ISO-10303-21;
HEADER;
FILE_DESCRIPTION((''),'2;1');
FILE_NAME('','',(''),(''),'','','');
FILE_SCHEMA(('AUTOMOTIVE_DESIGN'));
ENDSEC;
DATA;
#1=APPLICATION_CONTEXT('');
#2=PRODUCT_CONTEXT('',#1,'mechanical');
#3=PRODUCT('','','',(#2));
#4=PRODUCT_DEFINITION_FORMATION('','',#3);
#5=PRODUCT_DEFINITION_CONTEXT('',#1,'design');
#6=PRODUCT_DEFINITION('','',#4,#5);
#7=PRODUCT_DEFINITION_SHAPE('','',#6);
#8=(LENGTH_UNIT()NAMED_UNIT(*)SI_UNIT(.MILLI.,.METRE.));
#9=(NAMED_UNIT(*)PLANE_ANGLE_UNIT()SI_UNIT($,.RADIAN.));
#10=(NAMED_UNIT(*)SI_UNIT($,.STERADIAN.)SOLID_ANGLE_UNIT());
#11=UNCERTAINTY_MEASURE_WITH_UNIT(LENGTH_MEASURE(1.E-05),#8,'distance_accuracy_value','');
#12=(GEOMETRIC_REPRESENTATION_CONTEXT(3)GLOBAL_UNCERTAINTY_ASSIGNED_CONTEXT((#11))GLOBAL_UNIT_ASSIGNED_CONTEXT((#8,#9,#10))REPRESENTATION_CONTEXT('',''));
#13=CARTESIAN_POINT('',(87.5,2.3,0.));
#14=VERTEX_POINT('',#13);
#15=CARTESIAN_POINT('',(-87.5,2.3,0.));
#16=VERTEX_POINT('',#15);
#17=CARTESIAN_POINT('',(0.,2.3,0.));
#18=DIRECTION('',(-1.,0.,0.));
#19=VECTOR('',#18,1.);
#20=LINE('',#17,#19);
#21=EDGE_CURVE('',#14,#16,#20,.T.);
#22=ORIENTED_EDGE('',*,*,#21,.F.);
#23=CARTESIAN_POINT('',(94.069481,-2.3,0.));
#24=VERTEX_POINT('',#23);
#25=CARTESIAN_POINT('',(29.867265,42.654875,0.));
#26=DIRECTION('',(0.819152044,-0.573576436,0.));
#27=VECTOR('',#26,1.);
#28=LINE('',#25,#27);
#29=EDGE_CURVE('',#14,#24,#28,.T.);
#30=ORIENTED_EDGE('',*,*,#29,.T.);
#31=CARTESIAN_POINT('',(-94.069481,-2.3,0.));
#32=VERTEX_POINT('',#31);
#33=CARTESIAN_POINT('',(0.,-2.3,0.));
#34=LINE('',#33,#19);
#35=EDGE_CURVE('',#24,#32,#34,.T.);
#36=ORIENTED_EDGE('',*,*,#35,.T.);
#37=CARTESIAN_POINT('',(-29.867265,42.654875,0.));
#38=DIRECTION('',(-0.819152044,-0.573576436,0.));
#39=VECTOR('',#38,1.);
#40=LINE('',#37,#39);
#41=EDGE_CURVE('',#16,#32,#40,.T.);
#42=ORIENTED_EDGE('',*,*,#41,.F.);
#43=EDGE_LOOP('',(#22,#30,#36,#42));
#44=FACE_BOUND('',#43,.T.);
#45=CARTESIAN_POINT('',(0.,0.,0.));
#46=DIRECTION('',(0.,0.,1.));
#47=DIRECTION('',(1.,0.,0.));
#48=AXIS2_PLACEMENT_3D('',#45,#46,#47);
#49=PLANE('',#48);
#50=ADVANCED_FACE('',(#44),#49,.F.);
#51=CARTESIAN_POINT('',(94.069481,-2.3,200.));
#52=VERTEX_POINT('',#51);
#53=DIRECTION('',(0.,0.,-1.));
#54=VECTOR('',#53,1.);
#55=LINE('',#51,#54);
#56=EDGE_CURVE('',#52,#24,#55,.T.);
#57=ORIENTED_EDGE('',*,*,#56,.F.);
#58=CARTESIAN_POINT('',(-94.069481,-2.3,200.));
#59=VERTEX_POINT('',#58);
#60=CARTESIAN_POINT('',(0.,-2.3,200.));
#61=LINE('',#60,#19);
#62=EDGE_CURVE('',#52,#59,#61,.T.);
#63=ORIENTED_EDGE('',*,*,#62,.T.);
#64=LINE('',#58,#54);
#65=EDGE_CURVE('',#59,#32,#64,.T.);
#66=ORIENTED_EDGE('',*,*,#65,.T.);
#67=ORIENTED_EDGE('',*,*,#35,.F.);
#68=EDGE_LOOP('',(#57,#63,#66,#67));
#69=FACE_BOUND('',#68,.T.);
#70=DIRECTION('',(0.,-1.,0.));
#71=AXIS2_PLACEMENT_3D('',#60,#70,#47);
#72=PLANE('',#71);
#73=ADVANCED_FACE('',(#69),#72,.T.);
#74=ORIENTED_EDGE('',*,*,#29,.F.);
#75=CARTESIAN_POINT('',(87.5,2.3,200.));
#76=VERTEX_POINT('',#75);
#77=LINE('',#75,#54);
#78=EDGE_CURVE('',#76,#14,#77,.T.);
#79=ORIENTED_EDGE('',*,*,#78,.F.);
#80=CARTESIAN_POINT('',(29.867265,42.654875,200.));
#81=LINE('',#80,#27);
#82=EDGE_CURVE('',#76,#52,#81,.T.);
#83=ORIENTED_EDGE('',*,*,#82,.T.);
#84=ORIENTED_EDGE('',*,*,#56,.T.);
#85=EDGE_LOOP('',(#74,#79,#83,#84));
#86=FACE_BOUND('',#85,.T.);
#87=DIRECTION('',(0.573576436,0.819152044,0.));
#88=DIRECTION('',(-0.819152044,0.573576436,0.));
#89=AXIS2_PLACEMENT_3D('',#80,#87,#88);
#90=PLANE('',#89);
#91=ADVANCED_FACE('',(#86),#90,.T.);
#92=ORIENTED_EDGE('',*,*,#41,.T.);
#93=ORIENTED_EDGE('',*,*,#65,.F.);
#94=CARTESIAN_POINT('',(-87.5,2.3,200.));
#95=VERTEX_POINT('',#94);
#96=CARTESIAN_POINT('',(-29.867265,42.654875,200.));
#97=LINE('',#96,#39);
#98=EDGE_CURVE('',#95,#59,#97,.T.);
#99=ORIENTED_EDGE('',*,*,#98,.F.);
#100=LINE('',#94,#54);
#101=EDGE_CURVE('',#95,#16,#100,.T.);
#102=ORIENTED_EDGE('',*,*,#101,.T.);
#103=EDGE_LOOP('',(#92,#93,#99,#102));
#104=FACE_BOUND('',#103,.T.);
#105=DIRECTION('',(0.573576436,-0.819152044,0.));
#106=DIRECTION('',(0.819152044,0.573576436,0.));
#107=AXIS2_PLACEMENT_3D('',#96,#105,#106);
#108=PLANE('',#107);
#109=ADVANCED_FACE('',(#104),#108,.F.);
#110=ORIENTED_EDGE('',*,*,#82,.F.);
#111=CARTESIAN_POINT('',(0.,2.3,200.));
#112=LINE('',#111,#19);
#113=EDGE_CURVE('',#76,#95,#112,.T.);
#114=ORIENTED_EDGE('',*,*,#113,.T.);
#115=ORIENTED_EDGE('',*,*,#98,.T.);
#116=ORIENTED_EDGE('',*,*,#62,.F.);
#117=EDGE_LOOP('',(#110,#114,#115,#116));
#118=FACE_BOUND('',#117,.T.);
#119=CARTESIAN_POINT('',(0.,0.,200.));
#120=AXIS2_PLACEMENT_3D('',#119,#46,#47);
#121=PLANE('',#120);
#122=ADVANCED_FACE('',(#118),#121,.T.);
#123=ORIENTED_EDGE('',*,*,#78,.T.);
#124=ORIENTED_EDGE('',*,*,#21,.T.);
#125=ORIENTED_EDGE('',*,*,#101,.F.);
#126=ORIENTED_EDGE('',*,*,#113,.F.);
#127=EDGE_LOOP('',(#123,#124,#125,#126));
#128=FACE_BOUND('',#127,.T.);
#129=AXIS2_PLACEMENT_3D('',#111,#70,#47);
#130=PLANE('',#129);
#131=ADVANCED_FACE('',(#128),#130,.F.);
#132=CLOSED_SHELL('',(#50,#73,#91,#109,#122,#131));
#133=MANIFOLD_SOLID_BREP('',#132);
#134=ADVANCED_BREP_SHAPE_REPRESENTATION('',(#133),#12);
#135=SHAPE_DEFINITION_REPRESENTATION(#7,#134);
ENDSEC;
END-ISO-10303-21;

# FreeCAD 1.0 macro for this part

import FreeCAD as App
import Part
import Sketcher
from FreeCAD import Vector
Q = App.Units.Quantity

doc = App.newDocument("Part")
params = doc.addObject("Spreadsheet::Sheet", "Params")
for row, (alias, value) in enumerate([
    ("sketch1_width", "175 mm"),
    ("pad1_length", "200 mm"),
], start=1):
    params.set(f"A{row}", alias)
    params.set(f"B{row}", "=" + value)
    params.setAlias(f"B{row}", alias)

body = doc.addObject("PartDesign::Body", "Body")

# Sketch on XY plane
sketch1 = body.newObject("Sketcher::SketchObject", "Sketch")
sketch1.AttachmentSupport = (doc.getObject("XY_Plane"), [""])
sketch1.MapMode = "FlatFace"
sketch1.addGeometry(Part.LineSegment(Vector(-88, 2, 0), Vector(-94, -2, 0)), False)
sketch1.addGeometry(Part.LineSegment(Vector(-94, -2, 0), Vector(94, -2, 0)), False)
sketch1.addGeometry(Part.LineSegment(Vector(94, -2, 0), Vector(88, 2, 0)), False)
sketch1.addGeometry(Part.LineSegment(Vector(88, 2, 0), Vector(-88, 2, 0)), False)
sketch1.addConstraint(Sketcher.Constraint("Coincident", 0, 2, 1, 1))
sketch1.addConstraint(Sketcher.Constraint("Coincident", 1, 2, 2, 1))
sketch1.addConstraint(Sketcher.Constraint("Coincident", 2, 2, 3, 1))
sketch1.addConstraint(Sketcher.Constraint("Coincident", 3, 2, 0, 1))
sketch1.addConstraint(Sketcher.Constraint("Horizontal", 1))
sketch1.addConstraint(Sketcher.Constraint("Horizontal", 3))
sketch1.addConstraint(Sketcher.Constraint("Equal", 0, 2))
sketch1.addConstraint(Sketcher.Constraint("DistanceX", 3, 2, 3, 1, 175.0))
sketch1.addConstraint(Sketcher.Constraint("Angle", 0, Q("-145 deg")))
sketch1.addConstraint(Sketcher.Constraint("DistanceY", 0, 2, -1, 1, 2.3))
sketch1.addConstraint(Sketcher.Constraint("DistanceX", -1, 1, 2, 2, 87.5))
sketch1.addConstraint(Sketcher.Constraint("DistanceY", -1, 1, 2, 2, 2.3))
sketch1.setExpression("Constraints[7]", "Params.sketch1_width")
pad1 = body.newObject("PartDesign::Pad", "Pad")
pad1.Profile = sketch1
pad1.setExpression("Length", "Params.pad1_length")

doc.recompute()
